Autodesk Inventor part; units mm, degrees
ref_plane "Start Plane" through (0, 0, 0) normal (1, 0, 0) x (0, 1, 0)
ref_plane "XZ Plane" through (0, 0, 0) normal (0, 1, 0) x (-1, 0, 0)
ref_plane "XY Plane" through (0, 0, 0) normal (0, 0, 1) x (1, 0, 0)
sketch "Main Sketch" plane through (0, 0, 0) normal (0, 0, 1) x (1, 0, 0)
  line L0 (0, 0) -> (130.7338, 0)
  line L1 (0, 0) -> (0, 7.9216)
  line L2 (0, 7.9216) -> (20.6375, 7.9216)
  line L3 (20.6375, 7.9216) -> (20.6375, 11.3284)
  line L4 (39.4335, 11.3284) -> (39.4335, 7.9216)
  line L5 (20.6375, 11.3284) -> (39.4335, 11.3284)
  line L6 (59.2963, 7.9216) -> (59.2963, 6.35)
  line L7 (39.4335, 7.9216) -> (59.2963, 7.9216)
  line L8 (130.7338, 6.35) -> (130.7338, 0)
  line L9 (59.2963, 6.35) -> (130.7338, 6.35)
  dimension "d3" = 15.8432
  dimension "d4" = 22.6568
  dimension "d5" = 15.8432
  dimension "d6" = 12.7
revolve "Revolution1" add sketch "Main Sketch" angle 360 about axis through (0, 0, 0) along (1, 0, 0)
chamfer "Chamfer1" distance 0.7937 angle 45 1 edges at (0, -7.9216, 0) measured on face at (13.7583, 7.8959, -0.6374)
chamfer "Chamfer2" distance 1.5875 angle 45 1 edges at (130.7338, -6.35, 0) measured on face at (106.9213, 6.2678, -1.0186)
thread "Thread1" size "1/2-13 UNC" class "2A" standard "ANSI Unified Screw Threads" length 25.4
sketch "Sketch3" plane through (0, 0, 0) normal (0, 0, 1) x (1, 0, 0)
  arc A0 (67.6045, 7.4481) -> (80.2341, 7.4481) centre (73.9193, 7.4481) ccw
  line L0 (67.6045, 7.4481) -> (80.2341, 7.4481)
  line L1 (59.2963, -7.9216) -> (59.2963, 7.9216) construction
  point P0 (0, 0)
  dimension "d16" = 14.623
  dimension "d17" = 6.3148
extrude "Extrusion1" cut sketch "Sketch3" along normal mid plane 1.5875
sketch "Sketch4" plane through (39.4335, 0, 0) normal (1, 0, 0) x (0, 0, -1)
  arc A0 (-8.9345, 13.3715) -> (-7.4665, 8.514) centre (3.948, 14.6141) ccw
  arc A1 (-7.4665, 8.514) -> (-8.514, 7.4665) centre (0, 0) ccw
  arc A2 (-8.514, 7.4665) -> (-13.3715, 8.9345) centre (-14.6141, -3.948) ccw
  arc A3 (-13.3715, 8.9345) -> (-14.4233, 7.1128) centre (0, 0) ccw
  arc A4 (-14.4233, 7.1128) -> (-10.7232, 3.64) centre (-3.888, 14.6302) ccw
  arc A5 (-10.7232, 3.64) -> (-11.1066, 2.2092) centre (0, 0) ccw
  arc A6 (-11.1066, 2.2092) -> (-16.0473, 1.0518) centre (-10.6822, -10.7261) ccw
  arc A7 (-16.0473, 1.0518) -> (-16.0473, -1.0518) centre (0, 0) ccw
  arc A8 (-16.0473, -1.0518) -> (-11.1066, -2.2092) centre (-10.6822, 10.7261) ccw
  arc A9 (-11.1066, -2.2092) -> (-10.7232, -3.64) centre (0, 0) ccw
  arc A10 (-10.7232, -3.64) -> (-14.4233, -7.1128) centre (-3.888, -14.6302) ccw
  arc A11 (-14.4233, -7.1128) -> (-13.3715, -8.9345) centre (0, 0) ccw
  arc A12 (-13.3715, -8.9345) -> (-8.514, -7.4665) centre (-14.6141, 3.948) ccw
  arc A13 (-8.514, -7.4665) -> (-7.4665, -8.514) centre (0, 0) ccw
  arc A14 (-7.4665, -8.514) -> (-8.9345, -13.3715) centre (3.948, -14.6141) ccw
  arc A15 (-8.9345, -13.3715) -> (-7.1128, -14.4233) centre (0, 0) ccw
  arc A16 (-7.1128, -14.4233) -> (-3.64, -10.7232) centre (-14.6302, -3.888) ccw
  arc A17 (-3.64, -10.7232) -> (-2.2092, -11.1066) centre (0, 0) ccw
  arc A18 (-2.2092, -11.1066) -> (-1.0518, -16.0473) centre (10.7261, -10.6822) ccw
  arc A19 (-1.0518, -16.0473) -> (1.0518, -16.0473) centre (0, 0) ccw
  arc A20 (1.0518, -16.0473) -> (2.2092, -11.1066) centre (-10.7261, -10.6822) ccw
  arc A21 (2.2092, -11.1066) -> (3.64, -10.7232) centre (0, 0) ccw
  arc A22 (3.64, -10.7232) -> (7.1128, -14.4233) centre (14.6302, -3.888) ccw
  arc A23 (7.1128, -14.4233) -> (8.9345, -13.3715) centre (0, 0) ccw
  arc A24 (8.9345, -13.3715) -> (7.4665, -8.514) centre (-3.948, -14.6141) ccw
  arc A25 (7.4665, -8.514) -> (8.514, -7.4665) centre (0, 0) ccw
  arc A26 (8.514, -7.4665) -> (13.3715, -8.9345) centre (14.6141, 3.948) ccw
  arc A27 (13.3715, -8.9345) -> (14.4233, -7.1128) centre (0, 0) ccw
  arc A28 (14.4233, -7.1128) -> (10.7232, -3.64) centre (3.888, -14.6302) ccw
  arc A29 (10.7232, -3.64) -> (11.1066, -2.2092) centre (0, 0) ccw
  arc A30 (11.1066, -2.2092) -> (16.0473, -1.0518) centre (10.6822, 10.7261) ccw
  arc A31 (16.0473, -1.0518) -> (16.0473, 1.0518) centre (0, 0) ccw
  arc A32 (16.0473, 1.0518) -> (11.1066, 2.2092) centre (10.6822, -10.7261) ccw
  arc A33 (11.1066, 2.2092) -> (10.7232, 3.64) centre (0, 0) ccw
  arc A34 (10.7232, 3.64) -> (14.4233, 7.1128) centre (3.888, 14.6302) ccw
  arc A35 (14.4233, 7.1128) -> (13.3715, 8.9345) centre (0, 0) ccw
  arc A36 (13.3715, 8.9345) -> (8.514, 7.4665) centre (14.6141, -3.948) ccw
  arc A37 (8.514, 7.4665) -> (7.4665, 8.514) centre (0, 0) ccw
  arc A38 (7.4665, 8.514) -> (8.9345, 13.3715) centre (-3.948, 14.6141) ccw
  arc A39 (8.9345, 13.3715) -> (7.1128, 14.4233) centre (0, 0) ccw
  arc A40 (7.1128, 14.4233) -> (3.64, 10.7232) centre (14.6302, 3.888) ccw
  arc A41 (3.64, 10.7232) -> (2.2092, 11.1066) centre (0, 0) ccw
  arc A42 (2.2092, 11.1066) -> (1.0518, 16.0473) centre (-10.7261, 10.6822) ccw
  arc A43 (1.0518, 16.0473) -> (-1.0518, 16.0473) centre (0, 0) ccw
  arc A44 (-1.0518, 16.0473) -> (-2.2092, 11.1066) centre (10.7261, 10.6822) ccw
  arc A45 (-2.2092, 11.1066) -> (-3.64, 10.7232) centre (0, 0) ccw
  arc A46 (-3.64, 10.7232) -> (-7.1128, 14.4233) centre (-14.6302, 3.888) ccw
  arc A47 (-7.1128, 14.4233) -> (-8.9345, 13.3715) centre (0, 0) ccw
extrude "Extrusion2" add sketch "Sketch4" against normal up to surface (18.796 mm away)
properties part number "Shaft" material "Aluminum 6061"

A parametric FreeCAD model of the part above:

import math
import FreeCAD as App
import Part
import Sketcher

V = App.Vector
Q = App.Units.Quantity


def edges_at(feature, points):
    """Names of the edges that pass closest to the given points."""
    edges = feature.Shape.Edges
    near = lambda p: min(range(len(edges)), key=lambda i: edges[i].distToShape(Part.Vertex(*p))[0])
    return sorted({f"Edge{near(p) + 1}" for p in points})

doc = App.newDocument("Part")
body = doc.addObject("PartDesign::Body", "Body")

# Sketch on XY plane
sketch1 = body.newObject("Sketcher::SketchObject", "Sketch")
sketch1.AttachmentSupport = (doc.getObject("XY_Plane"), [""])
sketch1.MapMode = "FlatFace"
sketch1.addGeometry(Part.LineSegment(V(0, 7.9216, 0), V(0, 0, 0)), False)
sketch1.addGeometry(Part.LineSegment(V(0, 0, 0), V(130.7338, 0, 0)), False)
sketch1.addGeometry(Part.LineSegment(V(130.7338, 0, 0), V(130.7338, 6.35, 0)), False)
sketch1.addGeometry(Part.LineSegment(V(130.7338, 6.35, 0), V(59.2963, 6.35, 0)), False)
sketch1.addGeometry(Part.LineSegment(V(59.2963, 6.35, 0), V(59.2963, 7.9216, 0)), False)
sketch1.addGeometry(Part.LineSegment(V(59.2963, 7.9216, 0), V(39.4335, 7.9216, 0)), False)
sketch1.addGeometry(Part.LineSegment(V(39.4335, 7.9216, 0), V(39.4335, 11.3284, 0)), False)
sketch1.addGeometry(Part.LineSegment(V(39.4335, 11.3284, 0), V(20.6375, 11.3284, 0)), False)
sketch1.addGeometry(Part.LineSegment(V(20.6375, 11.3284, 0), V(20.6375, 7.9216, 0)), False)
sketch1.addGeometry(Part.LineSegment(V(20.6375, 7.9216, 0), V(0, 7.9216, 0)), False)
sketch1.addConstraint(Sketcher.Constraint("Coincident", 0, 2, 1, 1))
sketch1.addConstraint(Sketcher.Constraint("Coincident", 1, 2, 2, 1))
sketch1.addConstraint(Sketcher.Constraint("Coincident", 2, 2, 3, 1))
sketch1.addConstraint(Sketcher.Constraint("Coincident", 3, 2, 4, 1))
sketch1.addConstraint(Sketcher.Constraint("Coincident", 4, 2, 5, 1))
sketch1.addConstraint(Sketcher.Constraint("Coincident", 5, 2, 6, 1))
sketch1.addConstraint(Sketcher.Constraint("Coincident", 6, 2, 7, 1))
sketch1.addConstraint(Sketcher.Constraint("Coincident", 7, 2, 8, 1))
sketch1.addConstraint(Sketcher.Constraint("Coincident", 8, 2, 9, 1))
sketch1.addConstraint(Sketcher.Constraint("Coincident", 9, 2, 0, 1))
sketch1.addConstraint(Sketcher.Constraint("Vertical", 0))
sketch1.addConstraint(Sketcher.Constraint("Horizontal", 1))
sketch1.addConstraint(Sketcher.Constraint("Vertical", 2))
sketch1.addConstraint(Sketcher.Constraint("Horizontal", 3))
sketch1.addConstraint(Sketcher.Constraint("Vertical", 4))
sketch1.addConstraint(Sketcher.Constraint("Horizontal", 5))
sketch1.addConstraint(Sketcher.Constraint("Vertical", 6))
sketch1.addConstraint(Sketcher.Constraint("Horizontal", 7))
sketch1.addConstraint(Sketcher.Constraint("Vertical", 8))
sketch1.addConstraint(Sketcher.Constraint("Horizontal", 9))
sketch1.addConstraint(Sketcher.Constraint("Coincident", 0, 2, -1, 1))
sketch1.addConstraint(Sketcher.Constraint("Horizontal", 5, 2, 8, 2))
sketch1.addConstraint(Sketcher.Constraint("DistanceX", 7, 2, 7, 1, Q("0.74 in")))
sketch1.addConstraint(Sketcher.Constraint("DistanceY", 2, 1, 2, 2, Q("0.25 in")))
sketch1.addConstraint(Sketcher.Constraint("DistanceX", 1, 1, 1, 2, Q("5.147 in")))
sketch1.addConstraint(Sketcher.Constraint("DistanceX", 3, 2, 3, 1, Q("2.8125 in")))
sketch1.addConstraint(Sketcher.Constraint("DistanceX", 5, 2, 5, 1, Q("0.782 in")))
sketch1.addConstraint(Sketcher.Constraint("DistanceY", -1, 1, 6, 2, Q("0.446 in")))
sketch1.addConstraint(Sketcher.Constraint("DistanceY", 0, 2, 0, 1, Q("7.9216 mm")))
revolution = body.newObject("PartDesign::Revolution", "Revolution")
revolution.Profile = sketch1
revolution.ReferenceAxis = (sketch1, ["H_Axis"])
revolution.Angle = 360
doc.recompute()

chamfer = body.newObject("PartDesign::Chamfer", "Chamfer")
chamfer.Base = (revolution, edges_at(revolution, [(0, -7.922, 0)]))
chamfer.Size = Q("0.031248 in")
doc.recompute()

chamfer2 = body.newObject("PartDesign::Chamfer", "Chamfer001")
chamfer2.Base = (chamfer, edges_at(chamfer, [(130.734, -6.35, 0)]))
chamfer2.Size = Q("0.0625 in")

# Sketch on XY plane
sketch2 = body.newObject("Sketcher::SketchObject", "Sketch001")
sketch2.AttachmentSupport = (doc.getObject("XY_Plane"), [""])
sketch2.MapMode = "FlatFace"
sketch2.addGeometry(Part.LineSegment(V(80.2341, 7.4481, 0), V(67.6045, 7.4481, 0)), False)
sketch2.addGeometry(Part.ArcOfCircle(Part.Circle(V(73.9193, 7.4481, 0), V(0, 0, 1), 6.3148), math.radians(180), math.radians(360)), False)
sketch2.addConstraint(Sketcher.Constraint("Coincident", 0, 1, 1, 2))
sketch2.addConstraint(Sketcher.Constraint("Coincident", 1, 1, 0, 2))
sketch2.addConstraint(Sketcher.Constraint("Horizontal", 0))
sketch2.addConstraint(Sketcher.Constraint("Horizontal", 1, 3, 0, 1))
sketch2.addConstraint(Sketcher.Constraint("Radius", 1, Q("6.3148 mm")))
sketch2.addConstraint(Sketcher.Constraint("DistanceX", -1, 1, 1, 3, Q("2.9102 in")))
sketch2.addConstraint(Sketcher.Constraint("DistanceY", -1, 1, 1, 3, Q("7.448 mm")))
pocket1 = body.newObject("PartDesign::Pocket", "Pocket")
pocket1.Profile = sketch2
pocket1.Length = Q("0.0625 in")
pocket1.Midplane = True

# Sketch on YZ plane
sketch3 = body.newObject("Sketcher::SketchObject", "Sketch002")
sketch3.AttachmentSupport = (doc.getObject("YZ_Plane"), [""])
sketch3.MapMode = "FlatFace"
sketch3.AttachmentOffset = App.Placement(V(0, 0, 1.5525 * 25.4), App.Rotation())
sketch3.addGeometry(Part.ArcOfCircle(Part.Circle(V(0.007711, 0.004122, 0), V(0, 0, 1), 16.073036), math.radians(26.24903), math.radians(33.752905)), False)
sketch3.addGeometry(Part.ArcOfCircle(Part.Circle(V(14.6141, -3.948, 0), V(0, 0, 1), 12.94229), math.radians(95.509502), math.radians(118.120794)), False)
sketch3.addGeometry(Part.ArcOfCircle(Part.Circle(V(0, 0, 0), V(0, 0, 1), 11.32417), math.radians(41.249705), math.radians(48.750295)), False)
sketch3.addGeometry(Part.ArcOfCircle(Part.Circle(V(-3.948, 14.6141, 0), V(0, 0, 1), 12.942258), math.radians(-28.120794), math.radians(-5.509502)), False)
sketch3.addGeometry(Part.ArcOfCircle(Part.Circle(V(-0.004622, -0.007433, 0), V(0, 0, 1), 16.090487), math.radians(56.25117), math.radians(63.746895)), False)
sketch3.addGeometry(Part.ArcOfCircle(Part.Circle(V(14.6302, 3.888, 0), V(0, 0, 1), 12.942328), math.radians(125.509528), math.radians(148.121036)), False)
sketch3.addGeometry(Part.ArcOfCircle(Part.Circle(V(-0.001528, -0.005037, 0), V(0, 0, 1), 11.329421), math.radians(71.251043), math.radians(78.74759)), False)
sketch3.addGeometry(Part.ArcOfCircle(Part.Circle(V(-10.727216, 10.682052, 0), V(0, 0, 1), 12.94338), math.radians(1.879659), math.radians(24.488886)), False)
sketch3.addGeometry(Part.ArcOfCircle(Part.Circle(V(0, 0, 0), V(0, 0, 1), 16.081733), math.radians(86.249984), math.radians(93.750016)), False)
sketch3.addGeometry(Part.ArcOfCircle(Part.Circle(V(10.725035, 10.682563, 0), V(0, 0, 1), 12.941184), math.radians(155.50917), math.radians(178.122285)), False)
sketch3.addGeometry(Part.ArcOfCircle(Part.Circle(V(-0.001194, 0.005121, 0), V(0, 0, 1), 11.318928), math.radians(101.24893), math.radians(108.752437)), False)
sketch3.addGeometry(Part.ArcOfCircle(Part.Circle(V(-14.6302, 3.888, 0), V(0, 0, 1), 12.942351), math.radians(31.878964), math.radians(54.490472)), False)
sketch3.addGeometry(Part.ArcOfCircle(Part.Circle(V(-0.004122, 0.007711, 0), V(0, 0, 1), 16.073036), math.radians(116.24903), math.radians(123.752905)), False)
sketch3.addGeometry(Part.ArcOfCircle(Part.Circle(V(3.948, 14.6141, 0), V(0, 0, 1), 12.94229), math.radians(-174.490498), math.radians(-151.879206)), False)
sketch3.addGeometry(Part.ArcOfCircle(Part.Circle(V(0, 0, 0), V(0, 0, 1), 11.32417), math.radians(131.249705), math.radians(138.750295)), False)
sketch3.addGeometry(Part.ArcOfCircle(Part.Circle(V(-14.6141, -3.948, 0), V(0, 0, 1), 12.942258), math.radians(61.879206), math.radians(84.490498)), False)
sketch3.addGeometry(Part.ArcOfCircle(Part.Circle(V(0.007433, -0.004622, 0), V(0, 0, 1), 16.090487), math.radians(146.25117), math.radians(153.746895)), False)
sketch3.addGeometry(Part.ArcOfCircle(Part.Circle(V(-3.888, 14.6302, 0), V(0, 0, 1), 12.942328), math.radians(-144.490472), math.radians(-121.878964)), False)
sketch3.addGeometry(Part.ArcOfCircle(Part.Circle(V(0.005037, -0.001528, 0), V(0, 0, 1), 11.329421), math.radians(161.251043), math.radians(168.74759)), False)
sketch3.addGeometry(Part.ArcOfCircle(Part.Circle(V(-10.682052, -10.727216, 0), V(0, 0, 1), 12.94338), math.radians(91.879659), math.radians(114.488886)), False)
sketch3.addGeometry(Part.ArcOfCircle(Part.Circle(V(0, 0, 0), V(0, 0, 1), 16.081733), math.radians(176.249984), math.radians(183.750016)), False)
sketch3.addGeometry(Part.ArcOfCircle(Part.Circle(V(-10.682563, 10.725035, 0), V(0, 0, 1), 12.941184), math.radians(-114.49083), math.radians(-91.877715)), False)
sketch3.addGeometry(Part.ArcOfCircle(Part.Circle(V(-0.005121, -0.001194, 0), V(0, 0, 1), 11.318928), math.radians(-168.75107), math.radians(-161.247563)), False)
sketch3.addGeometry(Part.ArcOfCircle(Part.Circle(V(-3.888, -14.6302, 0), V(0, 0, 1), 12.942351), math.radians(121.878964), math.radians(144.490472)), False)
sketch3.addGeometry(Part.ArcOfCircle(Part.Circle(V(-0.007711, -0.004122, 0), V(0, 0, 1), 16.073036), math.radians(-153.75097), math.radians(-146.247095)), False)
sketch3.addGeometry(Part.ArcOfCircle(Part.Circle(V(-14.6141, 3.948, 0), V(0, 0, 1), 12.94229), math.radians(-84.490498), math.radians(-61.879206)), False)
sketch3.addGeometry(Part.ArcOfCircle(Part.Circle(V(0, 0, 0), V(0, 0, 1), 11.32417), math.radians(-138.750295), math.radians(-131.249705)), False)
sketch3.addGeometry(Part.ArcOfCircle(Part.Circle(V(3.948, -14.6141, 0), V(0, 0, 1), 12.942258), math.radians(151.879206), math.radians(174.490498)), False)
sketch3.addGeometry(Part.ArcOfCircle(Part.Circle(V(0.004622, 0.007433, 0), V(0, 0, 1), 16.090487), math.radians(-123.74883), math.radians(-116.253105)), False)
sketch3.addGeometry(Part.ArcOfCircle(Part.Circle(V(-14.6302, -3.888, 0), V(0, 0, 1), 12.942328), math.radians(-54.490472), math.radians(-31.878964)), False)
sketch3.addGeometry(Part.ArcOfCircle(Part.Circle(V(0.001528, 0.005037, 0), V(0, 0, 1), 11.329421), math.radians(-108.748957), math.radians(-101.25241)), False)
sketch3.addGeometry(Part.ArcOfCircle(Part.Circle(V(10.727216, -10.682052, 0), V(0, 0, 1), 12.94338), math.radians(-178.120341), math.radians(-155.511114)), False)
sketch3.addGeometry(Part.ArcOfCircle(Part.Circle(V(0, 0, 0), V(0, 0, 1), 16.081733), math.radians(-93.750016), math.radians(-86.249984)), False)
sketch3.addGeometry(Part.ArcOfCircle(Part.Circle(V(-10.725035, -10.682563, 0), V(0, 0, 1), 12.941184), math.radians(-24.49083), math.radians(-1.877715)), False)
sketch3.addGeometry(Part.ArcOfCircle(Part.Circle(V(0.001194, -0.005121, 0), V(0, 0, 1), 11.318928), math.radians(-78.75107), math.radians(-71.247563)), False)
sketch3.addGeometry(Part.ArcOfCircle(Part.Circle(V(14.6302, -3.888, 0), V(0, 0, 1), 12.942351), math.radians(-148.121036), math.radians(-125.509528)), False)
sketch3.addGeometry(Part.ArcOfCircle(Part.Circle(V(0.004122, -0.007711, 0), V(0, 0, 1), 16.073036), math.radians(-63.75097), math.radians(-56.247095)), False)
sketch3.addGeometry(Part.ArcOfCircle(Part.Circle(V(-3.948, -14.6141, 0), V(0, 0, 1), 12.94229), math.radians(5.509502), math.radians(28.120794)), False)
sketch3.addGeometry(Part.ArcOfCircle(Part.Circle(V(0, 0, 0), V(0, 0, 1), 11.32417), math.radians(-48.750295), math.radians(-41.249705)), False)
sketch3.addGeometry(Part.ArcOfCircle(Part.Circle(V(14.6141, 3.948, 0), V(0, 0, 1), 12.942258), math.radians(-118.120794), math.radians(-95.509502)), False)
sketch3.addGeometry(Part.ArcOfCircle(Part.Circle(V(-0.007433, 0.004622, 0), V(0, 0, 1), 16.090487), math.radians(-33.74883), math.radians(-26.253105)), False)
sketch3.addGeometry(Part.ArcOfCircle(Part.Circle(V(3.888, -14.6302, 0), V(0, 0, 1), 12.942328), math.radians(35.509528), math.radians(58.121036)), False)
sketch3.addGeometry(Part.ArcOfCircle(Part.Circle(V(-0.005037, 0.001528, 0), V(0, 0, 1), 11.329421), math.radians(-18.748957), math.radians(-11.25241)), False)
sketch3.addGeometry(Part.ArcOfCircle(Part.Circle(V(10.682052, 10.727216, 0), V(0, 0, 1), 12.94338), math.radians(-88.120341), math.radians(-65.511114)), False)
sketch3.addGeometry(Part.ArcOfCircle(Part.Circle(V(0, 0, 0), V(0, 0, 1), 16.081733), math.radians(-3.750016), math.radians(3.750016)), False)
sketch3.addGeometry(Part.ArcOfCircle(Part.Circle(V(10.682563, -10.725035, 0), V(0, 0, 1), 12.941184), math.radians(65.50917), math.radians(88.122285)), False)
sketch3.addGeometry(Part.ArcOfCircle(Part.Circle(V(0.005121, 0.001194, 0), V(0, 0, 1), 11.318928), math.radians(11.24893), math.radians(18.752437)), False)
sketch3.addGeometry(Part.ArcOfCircle(Part.Circle(V(3.888, 14.6302, 0), V(0, 0, 1), 12.942351), math.radians(-58.121036), math.radians(-35.509528)), False)
sketch3.addConstraint(Sketcher.Constraint("Coincident", 0, 2, 1, 1))
sketch3.addConstraint(Sketcher.Constraint("Coincident", 1, 2, 2, 1))
sketch3.addConstraint(Sketcher.Constraint("Coincident", 2, 2, 3, 1))
sketch3.addConstraint(Sketcher.Constraint("Coincident", 3, 2, 4, 1))
sketch3.addConstraint(Sketcher.Constraint("Coincident", 4, 2, 5, 1))
sketch3.addConstraint(Sketcher.Constraint("Coincident", 5, 2, 6, 1))
sketch3.addConstraint(Sketcher.Constraint("Coincident", 6, 2, 7, 1))
sketch3.addConstraint(Sketcher.Constraint("Coincident", 7, 2, 8, 1))
sketch3.addConstraint(Sketcher.Constraint("Coincident", 8, 2, 9, 1))
sketch3.addConstraint(Sketcher.Constraint("Coincident", 9, 2, 10, 1))
sketch3.addConstraint(Sketcher.Constraint("Coincident", 10, 2, 11, 1))
sketch3.addConstraint(Sketcher.Constraint("Coincident", 11, 2, 12, 1))
sketch3.addConstraint(Sketcher.Constraint("Coincident", 12, 2, 13, 1))
sketch3.addConstraint(Sketcher.Constraint("Coincident", 13, 2, 14, 1))
sketch3.addConstraint(Sketcher.Constraint("Coincident", 14, 2, 15, 1))
sketch3.addConstraint(Sketcher.Constraint("Coincident", 15, 2, 16, 1))
sketch3.addConstraint(Sketcher.Constraint("Coincident", 16, 2, 17, 1))
sketch3.addConstraint(Sketcher.Constraint("Coincident", 17, 2, 18, 1))
sketch3.addConstraint(Sketcher.Constraint("Coincident", 18, 2, 19, 1))
sketch3.addConstraint(Sketcher.Constraint("Coincident", 19, 2, 20, 1))
sketch3.addConstraint(Sketcher.Constraint("Coincident", 20, 2, 21, 1))
sketch3.addConstraint(Sketcher.Constraint("Coincident", 21, 2, 22, 1))
sketch3.addConstraint(Sketcher.Constraint("Coincident", 22, 2, 23, 1))
sketch3.addConstraint(Sketcher.Constraint("Coincident", 23, 2, 24, 1))
sketch3.addConstraint(Sketcher.Constraint("Coincident", 24, 2, 25, 1))
sketch3.addConstraint(Sketcher.Constraint("Coincident", 25, 2, 26, 1))
sketch3.addConstraint(Sketcher.Constraint("Coincident", 26, 2, 27, 1))
sketch3.addConstraint(Sketcher.Constraint("Coincident", 27, 2, 28, 1))
sketch3.addConstraint(Sketcher.Constraint("Coincident", 28, 2, 29, 1))
sketch3.addConstraint(Sketcher.Constraint("Coincident", 29, 2, 30, 1))
sketch3.addConstraint(Sketcher.Constraint("Coincident", 30, 2, 31, 1))
sketch3.addConstraint(Sketcher.Constraint("Coincident", 31, 2, 32, 1))
sketch3.addConstraint(Sketcher.Constraint("Coincident", 32, 2, 33, 1))
sketch3.addConstraint(Sketcher.Constraint("Coincident", 33, 2, 34, 1))
sketch3.addConstraint(Sketcher.Constraint("Coincident", 34, 2, 35, 1))
sketch3.addConstraint(Sketcher.Constraint("Coincident", 35, 2, 36, 1))
sketch3.addConstraint(Sketcher.Constraint("Coincident", 36, 2, 37, 1))
sketch3.addConstraint(Sketcher.Constraint("Coincident", 37, 2, 38, 1))
sketch3.addConstraint(Sketcher.Constraint("Coincident", 38, 2, 39, 1))
sketch3.addConstraint(Sketcher.Constraint("Coincident", 39, 2, 40, 1))
sketch3.addConstraint(Sketcher.Constraint("Coincident", 40, 2, 41, 1))
sketch3.addConstraint(Sketcher.Constraint("Coincident", 41, 2, 42, 1))
sketch3.addConstraint(Sketcher.Constraint("Coincident", 42, 2, 43, 1))
sketch3.addConstraint(Sketcher.Constraint("Coincident", 43, 2, 44, 1))
sketch3.addConstraint(Sketcher.Constraint("Coincident", 44, 2, 45, 1))
sketch3.addConstraint(Sketcher.Constraint("Coincident", 45, 2, 46, 1))
sketch3.addConstraint(Sketcher.Constraint("Coincident", 46, 2, 47, 1))
sketch3.addConstraint(Sketcher.Constraint("Coincident", 47, 2, 0, 1))
sketch3.addConstraint(Sketcher.Constraint("Coincident", 2, 3, -1, 1))
sketch3.addConstraint(Sketcher.Constraint("Coincident", 8, 3, -1, 1))
sketch3.addConstraint(Sketcher.Constraint("Coincident", 14, 3, -1, 1))
sketch3.addConstraint(Sketcher.Constraint("Coincident", 20, 3, -1, 1))
sketch3.addConstraint(Sketcher.Constraint("Coincident", 26, 3, -1, 1))
sketch3.addConstraint(Sketcher.Constraint("Coincident", 32, 3, -1, 1))
sketch3.addConstraint(Sketcher.Constraint("Coincident", 38, 3, -1, 1))
sketch3.addConstraint(Sketcher.Constraint("Coincident", 44, 3, -1, 1))
sketch3.addConstraint(Sketcher.Constraint("Equal", 1, 3))
sketch3.addConstraint(Sketcher.Constraint("Equal", 3, 5))
sketch3.addConstraint(Sketcher.Constraint("Equal", 5, 11))
sketch3.addConstraint(Sketcher.Constraint("Equal", 0, 12))
sketch3.addConstraint(Sketcher.Constraint("Equal", 11, 13))
sketch3.addConstraint(Sketcher.Constraint("Equal", 2, 14))
sketch3.addConstraint(Sketcher.Constraint("Equal", 13, 15))
sketch3.addConstraint(Sketcher.Constraint("Equal", 4, 16))
sketch3.addConstraint(Sketcher.Constraint("Equal", 15, 17))
sketch3.addConstraint(Sketcher.Constraint("Equal", 6, 18))
sketch3.addConstraint(Sketcher.Constraint("Equal", 7, 19))
sketch3.addConstraint(Sketcher.Constraint("Equal", 8, 20))
sketch3.addConstraint(Sketcher.Constraint("Equal", 9, 21))
sketch3.addConstraint(Sketcher.Constraint("Equal", 10, 22))
sketch3.addConstraint(Sketcher.Constraint("Equal", 17, 23))
sketch3.addConstraint(Sketcher.Constraint("Equal", 12, 24))
sketch3.addConstraint(Sketcher.Constraint("Equal", 23, 25))
sketch3.addConstraint(Sketcher.Constraint("Equal", 14, 26))
sketch3.addConstraint(Sketcher.Constraint("Equal", 25, 27))
sketch3.addConstraint(Sketcher.Constraint("Equal", 16, 28))
sketch3.addConstraint(Sketcher.Constraint("Equal", 27, 29))
sketch3.addConstraint(Sketcher.Constraint("Equal", 18, 30))
sketch3.addConstraint(Sketcher.Constraint("Equal", 19, 31))
sketch3.addConstraint(Sketcher.Constraint("Equal", 20, 32))
sketch3.addConstraint(Sketcher.Constraint("Equal", 21, 33))
sketch3.addConstraint(Sketcher.Constraint("Equal", 22, 34))
sketch3.addConstraint(Sketcher.Constraint("Equal", 29, 35))
sketch3.addConstraint(Sketcher.Constraint("Equal", 24, 36))
sketch3.addConstraint(Sketcher.Constraint("Equal", 35, 37))
sketch3.addConstraint(Sketcher.Constraint("Equal", 26, 38))
sketch3.addConstraint(Sketcher.Constraint("Equal", 37, 39))
sketch3.addConstraint(Sketcher.Constraint("Equal", 28, 40))
sketch3.addConstraint(Sketcher.Constraint("Equal", 39, 41))
sketch3.addConstraint(Sketcher.Constraint("Equal", 30, 42))
sketch3.addConstraint(Sketcher.Constraint("Equal", 31, 43))
sketch3.addConstraint(Sketcher.Constraint("Equal", 32, 44))
sketch3.addConstraint(Sketcher.Constraint("Equal", 33, 45))
sketch3.addConstraint(Sketcher.Constraint("Equal", 34, 46))
sketch3.addConstraint(Sketcher.Constraint("Equal", 41, 47))
sketch3.addConstraint(Sketcher.Constraint("Symmetric", 0, 3, 24, 3, -1, 1))
sketch3.addConstraint(Sketcher.Constraint("Symmetric", 1, 3, 25, 3, -1, 1))
sketch3.addConstraint(Sketcher.Constraint("Symmetric", 3, 3, 27, 3, -1, 1))
sketch3.addConstraint(Sketcher.Constraint("Symmetric", 4, 3, 28, 3, -1, 1))
sketch3.addConstraint(Sketcher.Constraint("Symmetric", 5, 3, 29, 3, -1, 1))
sketch3.addConstraint(Sketcher.Constraint("Symmetric", 6, 3, 30, 3, -1, 1))
sketch3.addConstraint(Sketcher.Constraint("Symmetric", 7, 3, 31, 3, -1, 1))
sketch3.addConstraint(Sketcher.Constraint("Symmetric", 9, 3, 33, 3, -1, 1))
sketch3.addConstraint(Sketcher.Constraint("Symmetric", 10, 3, 34, 3, -1, 1))
sketch3.addConstraint(Sketcher.Constraint("Symmetric", 11, 3, 35, 3, -1, 1))
sketch3.addConstraint(Sketcher.Constraint("Symmetric", 12, 3, 36, 3, -1, 1))
sketch3.addConstraint(Sketcher.Constraint("Symmetric", 13, 3, 37, 3, -1, 1))
sketch3.addConstraint(Sketcher.Constraint("Symmetric", 15, 3, 39, 3, -1, 1))
sketch3.addConstraint(Sketcher.Constraint("Symmetric", 16, 3, 40, 3, -1, 1))
sketch3.addConstraint(Sketcher.Constraint("Symmetric", 17, 3, 41, 3, -1, 1))
sketch3.addConstraint(Sketcher.Constraint("Symmetric", 18, 3, 42, 3, -1, 1))
sketch3.addConstraint(Sketcher.Constraint("Symmetric", 19, 3, 43, 3, -1, 1))
sketch3.addConstraint(Sketcher.Constraint("Symmetric", 21, 3, 45, 3, -1, 1))
sketch3.addConstraint(Sketcher.Constraint("Symmetric", 22, 3, 46, 3, -1, 1))
sketch3.addConstraint(Sketcher.Constraint("Symmetric", 23, 3, 47, 3, -1, 1))
sketch3.addConstraint(Sketcher.Constraint("Symmetric", 5, 3, 11, 3, -2))
sketch3.addConstraint(Sketcher.Constraint("Symmetric", 3, 3, 13, 3, -2))
sketch3.addConstraint(Sketcher.Constraint("Symmetric", 1, 3, 15, 3, -2))
sketch3.addConstraint(Sketcher.Constraint("Symmetric", 18, 3, 22, 3, -2))
sketch3.addConstraint(Sketcher.Constraint("Symmetric", 10, 3, 30, 3, -2))
sketch3.addConstraint(Sketcher.Constraint("Symmetric", 23, 3, 41, 3, -2))
sketch3.addConstraint(Sketcher.Constraint("Symmetric", 6, 2, 9, 2, -2))
sketch3.addConstraint(Sketcher.Constraint("Symmetric", 21, 2, 42, 2, -2))
sketch3.addConstraint(Sketcher.Constraint("Horizontal", 7, 2, 8, 2))
sketch3.addConstraint(Sketcher.Constraint("Horizontal", 5, 2, 10, 2))
sketch3.addConstraint(Sketcher.Constraint("Horizontal", 4, 2, 11, 2))
sketch3.addConstraint(Sketcher.Constraint("Horizontal", 3, 2, 12, 2))
sketch3.addConstraint(Sketcher.Constraint("Horizontal", 0, 2, 15, 2))
sketch3.addConstraint(Sketcher.Constraint("Horizontal", 23, 2, 40, 2))
sketch3.addConstraint(Sketcher.Constraint("Horizontal", 22, 2, 41, 2))
sketch3.addConstraint(Sketcher.Constraint("Horizontal", 20, 2, 43, 2))
sketch3.addConstraint(Sketcher.Constraint("Radius", 0, Q("0.6328 in")))
sketch3.addConstraint(Sketcher.Constraint("Radius", 9, Q("0.5095 in")))
sketch3.addConstraint(Sketcher.Constraint("Radius", 1, Q("12.9423 mm")))
sketch3.addConstraint(Sketcher.Constraint("Radius", 2, Q("11.3242 mm")))
sketch3.addConstraint(Sketcher.Constraint("Radius", 4, Q("16.0905 mm")))
sketch3.addConstraint(Sketcher.Constraint("Radius", 6, Q("11.3294 mm")))
sketch3.addConstraint(Sketcher.Constraint("Radius", 7, Q("12.9434 mm")))
sketch3.addConstraint(Sketcher.Constraint("Radius", 8, Q("16.0817 mm")))
sketch3.addConstraint(Sketcher.Constraint("Radius", 10, Q("11.319 mm")))
sketch3.addConstraint(Sketcher.Constraint("DistanceX", -1, 1, 5, 3, Q("0.576 in")))
sketch3.addConstraint(Sketcher.Constraint("DistanceY", -1, 1, 17, 3, Q("0.576 in")))
sketch3.addConstraint(Sketcher.Constraint("DistanceX", -1, 1, 0, 3, Q("0.0003 in")))
sketch3.addConstraint(Sketcher.Constraint("DistanceY", 4, 3, -1, 1, Q("0.0003 in")))
sketch3.addConstraint(Sketcher.Constraint("DistanceX", -1, 1, 1, 2, Q("0.3352 in")))
sketch3.addConstraint(Sketcher.Constraint("DistanceY", -1, 1, 2, 2, Q("0.3352 in")))
sketch3.addConstraint(Sketcher.Constraint("DistanceX", -1, 1, 5, 2, Q("0.1433 in")))
sketch3.addConstraint(Sketcher.Constraint("DistanceX", -1, 1, 7, 2, Q("0.0414 in")))
sketch3.addConstraint(Sketcher.Constraint("DistanceY", -1, 1, 17, 2, Q("0.1433 in")))
sketch3.addConstraint(Sketcher.Constraint("DistanceY", -1, 1, 19, 2, Q("0.0414 in")))
sketch3.addConstraint(Sketcher.Constraint("DistanceY", -1, 1, 0, 3, Q("0.0041 mm")))
sketch3.addConstraint(Sketcher.Constraint("DistanceX", -1, 1, 1, 3, Q("14.614 mm")))
sketch3.addConstraint(Sketcher.Constraint("DistanceX", 3, 3, -1, 1, Q("3.948 mm")))
sketch3.addConstraint(Sketcher.Constraint("DistanceX", 4, 3, -1, 1, Q("0.0046 mm")))
sketch3.addConstraint(Sketcher.Constraint("DistanceX", 7, 3, -1, 1, Q("10.7272 mm")))
sketch3.addConstraint(Sketcher.Constraint("DistanceX", 19, 3, -1, 1, Q("10.682 mm")))
pad1 = body.newObject("PartDesign::Pad", "Pad")
pad1.Profile = sketch3
pad1.Length = Q("0.74 in")
pad1.Reversed = True

doc.recompute()
